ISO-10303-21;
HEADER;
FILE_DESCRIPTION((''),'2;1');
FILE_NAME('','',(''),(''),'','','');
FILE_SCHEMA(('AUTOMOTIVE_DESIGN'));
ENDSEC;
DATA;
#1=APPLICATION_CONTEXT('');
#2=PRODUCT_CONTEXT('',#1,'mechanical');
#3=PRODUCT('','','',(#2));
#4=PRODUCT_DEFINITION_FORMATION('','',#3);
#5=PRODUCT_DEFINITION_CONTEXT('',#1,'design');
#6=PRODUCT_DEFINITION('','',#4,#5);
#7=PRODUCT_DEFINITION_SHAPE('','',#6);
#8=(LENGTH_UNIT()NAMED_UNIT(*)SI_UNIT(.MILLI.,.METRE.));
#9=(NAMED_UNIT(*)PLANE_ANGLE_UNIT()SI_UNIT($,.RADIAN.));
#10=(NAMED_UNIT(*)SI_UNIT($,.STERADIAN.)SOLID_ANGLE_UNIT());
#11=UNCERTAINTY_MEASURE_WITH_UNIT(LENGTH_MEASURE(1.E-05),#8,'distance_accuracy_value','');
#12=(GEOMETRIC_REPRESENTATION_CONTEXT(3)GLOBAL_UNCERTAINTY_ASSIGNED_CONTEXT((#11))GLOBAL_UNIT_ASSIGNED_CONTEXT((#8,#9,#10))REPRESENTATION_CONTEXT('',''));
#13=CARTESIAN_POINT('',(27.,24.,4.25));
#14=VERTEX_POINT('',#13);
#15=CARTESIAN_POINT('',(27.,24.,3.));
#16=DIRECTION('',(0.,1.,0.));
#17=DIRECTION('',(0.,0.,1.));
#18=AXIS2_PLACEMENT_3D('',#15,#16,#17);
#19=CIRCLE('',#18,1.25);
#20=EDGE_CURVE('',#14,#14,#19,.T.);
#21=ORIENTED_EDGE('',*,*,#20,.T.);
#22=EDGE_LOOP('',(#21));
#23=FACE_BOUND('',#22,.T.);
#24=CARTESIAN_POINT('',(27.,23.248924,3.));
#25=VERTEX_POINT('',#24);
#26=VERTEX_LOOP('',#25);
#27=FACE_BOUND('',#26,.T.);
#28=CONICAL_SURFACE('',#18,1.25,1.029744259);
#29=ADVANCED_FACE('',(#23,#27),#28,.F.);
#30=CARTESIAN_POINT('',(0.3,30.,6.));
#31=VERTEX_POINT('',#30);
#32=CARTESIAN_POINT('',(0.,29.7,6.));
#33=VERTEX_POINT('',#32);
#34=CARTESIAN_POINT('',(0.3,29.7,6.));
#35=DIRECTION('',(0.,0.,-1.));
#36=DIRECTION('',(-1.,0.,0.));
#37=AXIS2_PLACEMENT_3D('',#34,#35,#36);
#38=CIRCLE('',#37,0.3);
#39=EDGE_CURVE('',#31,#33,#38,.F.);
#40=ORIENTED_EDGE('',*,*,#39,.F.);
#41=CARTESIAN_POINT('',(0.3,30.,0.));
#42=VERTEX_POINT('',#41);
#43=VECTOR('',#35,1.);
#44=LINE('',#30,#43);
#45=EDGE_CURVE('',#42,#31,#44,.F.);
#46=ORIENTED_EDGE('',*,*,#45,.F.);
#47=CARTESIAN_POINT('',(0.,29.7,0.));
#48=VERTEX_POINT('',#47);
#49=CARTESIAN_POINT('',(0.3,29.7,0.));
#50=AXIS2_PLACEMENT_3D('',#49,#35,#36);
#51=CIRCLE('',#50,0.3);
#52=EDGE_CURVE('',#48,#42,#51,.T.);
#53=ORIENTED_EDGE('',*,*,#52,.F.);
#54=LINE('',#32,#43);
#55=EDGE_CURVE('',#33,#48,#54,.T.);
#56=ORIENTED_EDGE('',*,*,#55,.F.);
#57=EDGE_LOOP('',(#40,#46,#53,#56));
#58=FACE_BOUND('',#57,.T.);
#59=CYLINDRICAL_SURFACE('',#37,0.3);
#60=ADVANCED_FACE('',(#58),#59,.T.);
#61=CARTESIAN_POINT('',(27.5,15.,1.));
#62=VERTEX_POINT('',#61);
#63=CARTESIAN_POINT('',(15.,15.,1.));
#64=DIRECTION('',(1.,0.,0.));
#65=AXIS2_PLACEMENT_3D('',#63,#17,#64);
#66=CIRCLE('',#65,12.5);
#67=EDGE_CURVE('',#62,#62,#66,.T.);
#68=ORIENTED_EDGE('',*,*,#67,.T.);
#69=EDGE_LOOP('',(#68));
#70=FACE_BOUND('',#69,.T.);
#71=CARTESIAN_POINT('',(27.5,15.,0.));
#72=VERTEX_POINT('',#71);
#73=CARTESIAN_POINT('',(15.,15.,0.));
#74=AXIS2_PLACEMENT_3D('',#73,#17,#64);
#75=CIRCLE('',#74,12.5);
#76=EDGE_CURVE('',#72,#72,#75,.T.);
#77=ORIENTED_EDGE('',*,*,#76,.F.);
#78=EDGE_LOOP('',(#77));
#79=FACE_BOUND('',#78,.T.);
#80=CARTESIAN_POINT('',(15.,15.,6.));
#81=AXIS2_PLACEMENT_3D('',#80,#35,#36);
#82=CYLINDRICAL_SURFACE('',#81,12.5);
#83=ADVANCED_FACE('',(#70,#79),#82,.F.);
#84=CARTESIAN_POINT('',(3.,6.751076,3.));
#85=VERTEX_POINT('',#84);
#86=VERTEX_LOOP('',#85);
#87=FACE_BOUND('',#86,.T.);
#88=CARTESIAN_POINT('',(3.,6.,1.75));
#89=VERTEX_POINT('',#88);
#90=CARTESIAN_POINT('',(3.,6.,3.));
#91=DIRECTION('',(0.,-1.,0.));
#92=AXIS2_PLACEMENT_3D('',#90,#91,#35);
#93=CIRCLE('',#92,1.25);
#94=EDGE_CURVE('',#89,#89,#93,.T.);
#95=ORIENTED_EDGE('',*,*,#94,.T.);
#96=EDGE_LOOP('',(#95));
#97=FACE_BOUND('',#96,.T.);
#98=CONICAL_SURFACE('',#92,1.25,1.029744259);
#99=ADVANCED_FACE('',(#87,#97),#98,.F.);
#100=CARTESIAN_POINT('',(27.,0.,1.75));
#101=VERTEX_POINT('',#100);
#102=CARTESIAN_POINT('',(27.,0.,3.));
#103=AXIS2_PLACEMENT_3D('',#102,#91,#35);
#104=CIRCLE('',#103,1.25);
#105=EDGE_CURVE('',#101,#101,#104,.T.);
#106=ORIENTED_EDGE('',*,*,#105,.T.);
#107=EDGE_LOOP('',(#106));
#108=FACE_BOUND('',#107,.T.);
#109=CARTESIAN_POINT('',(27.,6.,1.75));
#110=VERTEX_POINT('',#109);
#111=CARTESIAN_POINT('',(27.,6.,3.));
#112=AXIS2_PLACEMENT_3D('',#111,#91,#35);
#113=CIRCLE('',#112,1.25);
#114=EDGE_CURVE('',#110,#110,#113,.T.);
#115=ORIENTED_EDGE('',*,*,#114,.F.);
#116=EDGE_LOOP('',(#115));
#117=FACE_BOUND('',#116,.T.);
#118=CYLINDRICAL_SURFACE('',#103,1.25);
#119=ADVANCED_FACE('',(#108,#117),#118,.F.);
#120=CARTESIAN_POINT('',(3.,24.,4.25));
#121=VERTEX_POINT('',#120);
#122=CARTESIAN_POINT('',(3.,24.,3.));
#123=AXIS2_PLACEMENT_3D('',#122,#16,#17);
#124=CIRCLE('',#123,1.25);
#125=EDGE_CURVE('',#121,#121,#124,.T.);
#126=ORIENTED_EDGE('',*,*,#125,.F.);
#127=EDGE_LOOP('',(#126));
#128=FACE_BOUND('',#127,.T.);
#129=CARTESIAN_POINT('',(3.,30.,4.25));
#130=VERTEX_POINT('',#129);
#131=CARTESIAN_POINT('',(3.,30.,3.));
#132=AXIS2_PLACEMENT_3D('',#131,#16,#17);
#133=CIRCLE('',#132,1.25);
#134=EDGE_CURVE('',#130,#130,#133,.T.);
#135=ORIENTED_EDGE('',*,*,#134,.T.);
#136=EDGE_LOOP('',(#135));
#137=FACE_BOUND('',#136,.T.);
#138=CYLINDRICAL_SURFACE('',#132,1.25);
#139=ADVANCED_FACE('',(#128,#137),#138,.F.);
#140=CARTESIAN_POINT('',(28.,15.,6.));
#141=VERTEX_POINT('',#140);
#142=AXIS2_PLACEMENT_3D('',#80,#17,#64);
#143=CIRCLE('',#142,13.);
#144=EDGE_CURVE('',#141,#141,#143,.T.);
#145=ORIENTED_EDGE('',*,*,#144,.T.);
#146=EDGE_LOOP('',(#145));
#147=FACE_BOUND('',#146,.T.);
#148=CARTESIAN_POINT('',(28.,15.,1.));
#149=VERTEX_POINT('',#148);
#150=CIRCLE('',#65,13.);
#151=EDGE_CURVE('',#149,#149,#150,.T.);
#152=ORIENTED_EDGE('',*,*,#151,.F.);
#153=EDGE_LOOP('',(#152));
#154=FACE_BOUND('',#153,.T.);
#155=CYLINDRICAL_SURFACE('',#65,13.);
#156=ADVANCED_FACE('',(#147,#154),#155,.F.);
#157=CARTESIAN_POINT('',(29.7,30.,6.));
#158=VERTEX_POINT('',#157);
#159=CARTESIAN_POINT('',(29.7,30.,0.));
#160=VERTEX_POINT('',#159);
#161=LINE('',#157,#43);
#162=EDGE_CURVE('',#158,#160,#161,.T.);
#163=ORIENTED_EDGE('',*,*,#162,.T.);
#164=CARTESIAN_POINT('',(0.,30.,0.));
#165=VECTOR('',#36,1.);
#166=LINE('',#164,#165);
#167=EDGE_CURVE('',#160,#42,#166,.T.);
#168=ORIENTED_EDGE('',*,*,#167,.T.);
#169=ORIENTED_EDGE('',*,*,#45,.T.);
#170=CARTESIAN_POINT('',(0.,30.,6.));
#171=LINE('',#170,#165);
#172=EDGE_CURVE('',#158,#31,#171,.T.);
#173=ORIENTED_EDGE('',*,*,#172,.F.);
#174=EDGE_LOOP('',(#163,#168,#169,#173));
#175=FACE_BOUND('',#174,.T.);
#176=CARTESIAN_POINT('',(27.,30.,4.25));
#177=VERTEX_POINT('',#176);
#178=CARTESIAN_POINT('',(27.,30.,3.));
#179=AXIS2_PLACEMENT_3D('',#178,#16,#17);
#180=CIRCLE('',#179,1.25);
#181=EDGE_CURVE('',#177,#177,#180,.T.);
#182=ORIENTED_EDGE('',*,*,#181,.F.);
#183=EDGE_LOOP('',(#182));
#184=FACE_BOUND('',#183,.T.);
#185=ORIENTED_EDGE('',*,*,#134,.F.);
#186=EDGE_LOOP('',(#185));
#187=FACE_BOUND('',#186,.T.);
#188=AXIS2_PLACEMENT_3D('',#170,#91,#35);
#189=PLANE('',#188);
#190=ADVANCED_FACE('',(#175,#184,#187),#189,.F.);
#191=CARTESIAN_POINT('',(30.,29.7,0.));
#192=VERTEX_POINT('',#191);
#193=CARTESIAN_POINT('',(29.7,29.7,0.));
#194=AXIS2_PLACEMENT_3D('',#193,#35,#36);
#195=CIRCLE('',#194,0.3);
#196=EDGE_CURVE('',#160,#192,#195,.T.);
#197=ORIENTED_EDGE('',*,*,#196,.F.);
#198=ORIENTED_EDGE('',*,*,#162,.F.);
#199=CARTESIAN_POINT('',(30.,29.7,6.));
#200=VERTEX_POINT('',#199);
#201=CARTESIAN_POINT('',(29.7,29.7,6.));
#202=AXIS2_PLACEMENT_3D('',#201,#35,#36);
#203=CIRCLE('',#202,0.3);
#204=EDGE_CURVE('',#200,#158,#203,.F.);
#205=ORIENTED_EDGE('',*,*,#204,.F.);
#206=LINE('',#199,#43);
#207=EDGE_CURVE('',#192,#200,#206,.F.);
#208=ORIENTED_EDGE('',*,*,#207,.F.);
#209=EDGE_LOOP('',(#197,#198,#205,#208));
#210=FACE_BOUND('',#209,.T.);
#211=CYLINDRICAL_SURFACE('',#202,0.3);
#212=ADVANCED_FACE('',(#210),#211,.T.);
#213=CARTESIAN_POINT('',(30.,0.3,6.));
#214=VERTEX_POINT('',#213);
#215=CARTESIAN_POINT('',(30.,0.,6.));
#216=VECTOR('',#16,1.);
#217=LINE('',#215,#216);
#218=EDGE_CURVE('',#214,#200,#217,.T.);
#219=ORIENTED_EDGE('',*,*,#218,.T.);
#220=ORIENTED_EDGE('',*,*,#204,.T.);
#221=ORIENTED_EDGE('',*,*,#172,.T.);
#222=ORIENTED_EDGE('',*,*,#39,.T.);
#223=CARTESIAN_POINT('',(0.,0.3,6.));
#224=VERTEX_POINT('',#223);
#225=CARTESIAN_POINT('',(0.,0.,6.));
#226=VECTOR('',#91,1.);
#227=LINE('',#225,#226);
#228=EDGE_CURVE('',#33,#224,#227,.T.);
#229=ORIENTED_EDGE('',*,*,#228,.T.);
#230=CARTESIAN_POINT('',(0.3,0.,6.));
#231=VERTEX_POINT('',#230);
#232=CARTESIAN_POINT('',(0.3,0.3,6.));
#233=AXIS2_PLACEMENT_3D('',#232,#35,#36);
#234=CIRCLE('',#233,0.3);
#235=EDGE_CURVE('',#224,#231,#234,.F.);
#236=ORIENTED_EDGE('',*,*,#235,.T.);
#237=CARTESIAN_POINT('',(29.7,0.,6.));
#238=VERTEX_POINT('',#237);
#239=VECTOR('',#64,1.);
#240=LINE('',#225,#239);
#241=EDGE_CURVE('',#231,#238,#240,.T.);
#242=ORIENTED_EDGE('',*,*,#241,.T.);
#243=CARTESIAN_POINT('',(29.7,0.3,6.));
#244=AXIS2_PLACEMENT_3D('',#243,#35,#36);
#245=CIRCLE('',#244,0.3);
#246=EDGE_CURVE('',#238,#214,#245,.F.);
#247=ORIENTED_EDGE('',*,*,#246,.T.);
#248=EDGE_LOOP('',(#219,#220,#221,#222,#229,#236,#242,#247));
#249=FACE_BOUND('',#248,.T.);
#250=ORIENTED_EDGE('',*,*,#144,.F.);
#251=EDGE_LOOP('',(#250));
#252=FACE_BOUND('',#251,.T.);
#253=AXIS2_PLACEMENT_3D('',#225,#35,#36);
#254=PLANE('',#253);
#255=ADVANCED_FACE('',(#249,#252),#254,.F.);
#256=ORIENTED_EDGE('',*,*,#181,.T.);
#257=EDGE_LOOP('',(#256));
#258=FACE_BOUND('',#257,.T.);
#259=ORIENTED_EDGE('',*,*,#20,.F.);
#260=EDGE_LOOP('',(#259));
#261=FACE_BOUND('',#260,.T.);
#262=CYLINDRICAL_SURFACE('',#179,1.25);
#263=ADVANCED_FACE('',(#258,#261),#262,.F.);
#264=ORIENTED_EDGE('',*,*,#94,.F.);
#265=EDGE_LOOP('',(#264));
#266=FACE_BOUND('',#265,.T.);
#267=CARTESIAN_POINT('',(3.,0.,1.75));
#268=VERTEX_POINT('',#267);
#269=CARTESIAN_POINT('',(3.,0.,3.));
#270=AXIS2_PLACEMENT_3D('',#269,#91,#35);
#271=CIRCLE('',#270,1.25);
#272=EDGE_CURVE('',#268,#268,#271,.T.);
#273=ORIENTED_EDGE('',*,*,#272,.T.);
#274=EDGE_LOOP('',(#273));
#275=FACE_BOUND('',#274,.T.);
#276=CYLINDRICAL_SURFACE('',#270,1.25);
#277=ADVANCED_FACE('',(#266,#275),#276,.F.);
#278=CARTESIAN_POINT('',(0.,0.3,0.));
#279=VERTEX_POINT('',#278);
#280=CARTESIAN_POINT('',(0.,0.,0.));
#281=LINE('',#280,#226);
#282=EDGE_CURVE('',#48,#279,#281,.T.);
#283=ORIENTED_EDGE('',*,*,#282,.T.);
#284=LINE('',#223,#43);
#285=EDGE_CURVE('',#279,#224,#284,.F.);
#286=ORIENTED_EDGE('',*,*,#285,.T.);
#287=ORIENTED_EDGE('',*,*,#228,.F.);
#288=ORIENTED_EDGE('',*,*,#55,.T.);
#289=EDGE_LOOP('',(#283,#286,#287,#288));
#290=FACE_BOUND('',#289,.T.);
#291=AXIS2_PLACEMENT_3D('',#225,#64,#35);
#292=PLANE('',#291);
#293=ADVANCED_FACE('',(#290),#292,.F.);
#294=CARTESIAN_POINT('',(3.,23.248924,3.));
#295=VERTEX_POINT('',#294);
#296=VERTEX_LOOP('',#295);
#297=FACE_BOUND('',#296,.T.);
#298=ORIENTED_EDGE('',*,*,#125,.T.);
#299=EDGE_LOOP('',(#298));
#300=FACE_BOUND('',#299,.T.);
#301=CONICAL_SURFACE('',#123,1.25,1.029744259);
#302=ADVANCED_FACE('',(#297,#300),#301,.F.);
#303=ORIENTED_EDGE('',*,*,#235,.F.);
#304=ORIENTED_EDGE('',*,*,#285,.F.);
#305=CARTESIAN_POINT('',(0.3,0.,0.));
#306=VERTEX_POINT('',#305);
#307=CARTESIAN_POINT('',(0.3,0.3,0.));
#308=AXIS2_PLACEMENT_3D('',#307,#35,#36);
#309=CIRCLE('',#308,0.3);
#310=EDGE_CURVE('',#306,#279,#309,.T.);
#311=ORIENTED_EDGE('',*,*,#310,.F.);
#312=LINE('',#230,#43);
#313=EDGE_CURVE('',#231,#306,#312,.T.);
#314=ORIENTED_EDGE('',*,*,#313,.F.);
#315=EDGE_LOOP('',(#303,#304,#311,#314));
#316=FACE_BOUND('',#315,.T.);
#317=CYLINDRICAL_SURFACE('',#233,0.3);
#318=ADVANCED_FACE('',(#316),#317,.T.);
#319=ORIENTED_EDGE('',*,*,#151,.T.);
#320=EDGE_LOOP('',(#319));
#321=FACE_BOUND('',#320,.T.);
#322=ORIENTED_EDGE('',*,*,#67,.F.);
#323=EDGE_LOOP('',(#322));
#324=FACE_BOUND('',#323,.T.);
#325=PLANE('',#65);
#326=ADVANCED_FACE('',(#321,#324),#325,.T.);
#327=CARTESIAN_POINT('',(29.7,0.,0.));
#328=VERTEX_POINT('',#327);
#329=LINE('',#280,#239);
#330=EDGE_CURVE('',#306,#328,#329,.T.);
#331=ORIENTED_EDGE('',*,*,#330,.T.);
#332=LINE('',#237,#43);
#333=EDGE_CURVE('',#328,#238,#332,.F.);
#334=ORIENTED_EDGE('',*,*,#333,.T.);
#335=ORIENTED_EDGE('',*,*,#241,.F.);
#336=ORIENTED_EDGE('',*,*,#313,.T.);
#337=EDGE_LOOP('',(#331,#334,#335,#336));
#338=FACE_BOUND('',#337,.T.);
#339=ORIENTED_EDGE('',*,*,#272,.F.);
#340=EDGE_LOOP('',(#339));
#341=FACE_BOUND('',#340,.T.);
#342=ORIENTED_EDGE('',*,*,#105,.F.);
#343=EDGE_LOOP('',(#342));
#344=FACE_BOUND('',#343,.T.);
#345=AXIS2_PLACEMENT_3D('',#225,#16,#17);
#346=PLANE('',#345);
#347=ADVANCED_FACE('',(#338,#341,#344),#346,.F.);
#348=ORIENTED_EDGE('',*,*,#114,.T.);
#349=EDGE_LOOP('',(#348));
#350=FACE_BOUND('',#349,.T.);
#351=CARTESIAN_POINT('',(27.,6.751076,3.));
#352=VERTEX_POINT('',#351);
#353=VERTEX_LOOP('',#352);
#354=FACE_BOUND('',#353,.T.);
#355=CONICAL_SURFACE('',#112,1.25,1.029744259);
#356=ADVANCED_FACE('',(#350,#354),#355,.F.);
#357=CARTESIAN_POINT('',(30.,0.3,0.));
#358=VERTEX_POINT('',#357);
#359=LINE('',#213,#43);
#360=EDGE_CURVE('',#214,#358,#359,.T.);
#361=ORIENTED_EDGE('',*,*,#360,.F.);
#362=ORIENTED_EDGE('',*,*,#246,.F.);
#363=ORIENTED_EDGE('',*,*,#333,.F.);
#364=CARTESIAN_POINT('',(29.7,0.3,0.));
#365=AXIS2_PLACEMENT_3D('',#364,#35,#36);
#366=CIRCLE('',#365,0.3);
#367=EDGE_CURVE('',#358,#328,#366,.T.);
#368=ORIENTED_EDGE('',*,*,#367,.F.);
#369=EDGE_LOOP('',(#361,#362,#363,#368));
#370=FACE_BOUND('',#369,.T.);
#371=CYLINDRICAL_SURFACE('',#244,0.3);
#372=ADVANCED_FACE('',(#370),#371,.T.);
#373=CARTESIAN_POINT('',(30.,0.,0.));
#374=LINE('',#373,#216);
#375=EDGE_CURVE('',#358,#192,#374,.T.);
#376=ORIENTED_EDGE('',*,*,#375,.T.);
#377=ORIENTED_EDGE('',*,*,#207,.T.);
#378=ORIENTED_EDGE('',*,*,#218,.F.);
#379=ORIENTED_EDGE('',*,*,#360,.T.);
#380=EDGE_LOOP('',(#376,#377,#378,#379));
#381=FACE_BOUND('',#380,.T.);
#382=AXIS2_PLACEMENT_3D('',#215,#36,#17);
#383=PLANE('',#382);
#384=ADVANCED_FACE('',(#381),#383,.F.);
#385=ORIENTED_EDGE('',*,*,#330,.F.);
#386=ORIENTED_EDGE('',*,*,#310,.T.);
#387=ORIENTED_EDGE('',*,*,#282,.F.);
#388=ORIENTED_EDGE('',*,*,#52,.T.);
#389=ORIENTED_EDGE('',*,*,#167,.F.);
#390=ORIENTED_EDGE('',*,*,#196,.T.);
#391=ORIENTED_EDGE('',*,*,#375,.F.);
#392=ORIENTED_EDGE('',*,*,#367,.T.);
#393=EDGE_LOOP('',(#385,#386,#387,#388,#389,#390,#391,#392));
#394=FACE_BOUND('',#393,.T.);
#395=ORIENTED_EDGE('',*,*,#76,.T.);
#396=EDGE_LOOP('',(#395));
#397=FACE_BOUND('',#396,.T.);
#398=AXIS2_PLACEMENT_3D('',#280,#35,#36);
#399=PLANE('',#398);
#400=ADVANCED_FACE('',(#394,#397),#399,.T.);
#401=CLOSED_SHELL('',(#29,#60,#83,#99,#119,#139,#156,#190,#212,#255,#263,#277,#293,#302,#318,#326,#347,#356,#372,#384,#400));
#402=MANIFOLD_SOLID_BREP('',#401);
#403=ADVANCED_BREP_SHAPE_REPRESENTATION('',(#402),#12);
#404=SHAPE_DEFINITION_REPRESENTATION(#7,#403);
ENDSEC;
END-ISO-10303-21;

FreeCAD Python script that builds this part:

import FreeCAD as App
import Part
import Sketcher
from FreeCAD import Vector


def edges_at(feature, points):
    """Names of the edges that pass closest to the given points."""
    edges = feature.Shape.Edges
    near = lambda p: min(range(len(edges)), key=lambda i: edges[i].distToShape(Part.Vertex(*p))[0])
    return sorted({f"Edge{near(p) + 1}" for p in points})


def add_polygon(sketch, points):
    """Adds a closed chain of lines whose ends are joined by coincident constraints."""
    first, n = sketch.GeometryCount, len(points)
    for a, b in zip(points, points[1:] + points[:1]):
        sketch.addGeometry(Part.LineSegment(App.Vector(*a, 0), App.Vector(*b, 0)), False)
    for i in range(n):
        sketch.addConstraint(Sketcher.Constraint("Coincident", first + i, 2, first + (i + 1) % n, 1))

doc = App.newDocument("Part")
params = doc.addObject("Spreadsheet::Sheet", "Params")
for row, (alias, value) in enumerate([
    ("sketch1_diameter", "25 mm"),
    ("sketch1_width", "30 mm"),
    ("pad1_length", "6 mm"),
    ("sketch2_diameter", "26 mm"),
    ("pocket1_length", "5 mm"),
    ("sketch3_diameter", "2.5 mm"),
    ("hole_diameter", "2.5 mm"),
    ("hole_depth", "6 mm"),
    ("sketch4_diameter", "2.5 mm"),
    ("hole2_diameter", "2.5 mm"),
    ("hole2_depth", "6 mm"),
    ("fillet_radius", "0.3 mm"),
], start=1):
    params.set(f"A{row}", alias)
    params.set(f"B{row}", "=" + value)
    params.setAlias(f"B{row}", alias)

body = doc.addObject("PartDesign::Body", "Body")

# Sketch on XY plane
sketch1 = body.newObject("Sketcher::SketchObject", "Sketch")
sketch1.AttachmentSupport = (doc.getObject("XY_Plane"), [""])
sketch1.MapMode = "FlatFace"
add_polygon(sketch1, [(0, 30), (0, 0), (30, 0), (30, 30)])  # lines 0-3
sketch1.addGeometry(Part.Circle(Vector(15, 15, 0), Vector(0, 0, 1), 12), False)  # 4
sketch1.addConstraint([
    Sketcher.Constraint("Vertical", 0),
    Sketcher.Constraint("Horizontal", 1),
    Sketcher.Constraint("Vertical", 2),
    Sketcher.Constraint("Horizontal", 3),
    Sketcher.Constraint("Coincident", 0, 2, -1, 1),
    Sketcher.Constraint("Equal", 3, 0),
    Sketcher.Constraint("Diameter", 4, 25.0),
    Sketcher.Constraint("DistanceX", 1, 1, 1, 2, 30.0),
    Sketcher.Constraint("DistanceX", -1, 1, 4, 3, 15.0),
    Sketcher.Constraint("DistanceY", -1, 1, 4, 3, 15.0),
])
sketch1.setExpression("Constraints[10]", "Params.sketch1_diameter")
sketch1.setExpression("Constraints[11]", "Params.sketch1_width")
pad1 = body.newObject("PartDesign::Pad", "Pad")
pad1.Profile = sketch1
pad1.setExpression("Length", "Params.pad1_length")

# Sketch on XY plane
sketch2 = body.newObject("Sketcher::SketchObject", "Sketch001")
sketch2.AttachmentSupport = (doc.getObject("XY_Plane"), [""])
sketch2.MapMode = "FlatFace"
sketch2.AttachmentOffset = App.Placement(Vector(0, 0, 6), App.Rotation())
sketch2.addGeometry(Part.Circle(Vector(15, 15, 0), Vector(0, 0, 1), 13), False)
sketch2.addConstraint([
    Sketcher.Constraint("Diameter", 0, 26.0),
    Sketcher.Constraint("DistanceX", -1, 1, 0, 3, 15.0),
    Sketcher.Constraint("DistanceY", -1, 1, 0, 3, 15.0),
])
sketch2.setExpression("Constraints[0]", "Params.sketch2_diameter")
pocket1 = body.newObject("PartDesign::Pocket", "Pocket")
pocket1.Profile = sketch2
pocket1.setExpression("Length", "Params.pocket1_length")

# Sketch on XZ plane
sketch3 = body.newObject("Sketcher::SketchObject", "Sketch002")
sketch3.AttachmentSupport = (doc.getObject("XZ_Plane"), [""])
sketch3.MapMode = "FlatFace"
sketch3.AttachmentOffset = App.Placement(Vector(0, 0, -30), App.Rotation())
sketch3.addGeometry([
    Part.Circle(Vector(3, 3, 0), Vector(0, 0, 1), 1.2),
    Part.Circle(Vector(27, 3, 0), Vector(0, 0, 1), 1.2),
], False)
sketch3.addConstraint([
    Sketcher.Constraint("Equal", 0, 1),
    Sketcher.Constraint("Horizontal", 0, 3, 1, 3),
    Sketcher.Constraint("Diameter", 0, 2.5),
    Sketcher.Constraint("DistanceX", -1, 1, 0, 3, 3.0),
    Sketcher.Constraint("DistanceY", -1, 1, 0, 3, 3.0),
    Sketcher.Constraint("DistanceX", -1, 1, 1, 3, 27.0),
])
sketch3.setExpression("Constraints[2]", "Params.sketch3_diameter")
doc.recompute()
hole = body.newObject("PartDesign::Hole", "Hole")
hole.Profile = sketch3
hole.ThreadType = "None"
hole.setExpression("Diameter", "Params.hole_diameter")
hole.DepthType = "Dimension"
hole.setExpression("Depth", "Params.hole_depth")
hole.DrillPoint = "Angled"
hole.DrillPointAngle = 118
hole.Reversed = True

# Sketch on XZ plane
sketch4 = body.newObject("Sketcher::SketchObject", "Sketch003")
sketch4.AttachmentSupport = (doc.getObject("XZ_Plane"), [""])
sketch4.MapMode = "FlatFace"
sketch4.addGeometry([
    Part.Circle(Vector(3, 3, 0), Vector(0, 0, 1), 1.2),
    Part.Circle(Vector(27, 3, 0), Vector(0, 0, 1), 1.2),
], False)
sketch4.addConstraint([
    Sketcher.Constraint("Equal", 0, 1),
    Sketcher.Constraint("Horizontal", 0, 3, 1, 3),
    Sketcher.Constraint("Diameter", 0, 2.5),
    Sketcher.Constraint("DistanceX", -1, 1, 0, 3, 3.0),
    Sketcher.Constraint("DistanceY", -1, 1, 0, 3, 3.0),
    Sketcher.Constraint("DistanceX", -1, 1, 1, 3, 27.0),
])
sketch4.setExpression("Constraints[2]", "Params.sketch4_diameter")
doc.recompute()
hole2 = body.newObject("PartDesign::Hole", "Hole001")
hole2.Profile = sketch4
hole2.ThreadType = "None"
hole2.setExpression("Diameter", "Params.hole2_diameter")
hole2.DepthType = "Dimension"
hole2.setExpression("Depth", "Params.hole2_depth")
hole2.DrillPoint = "Angled"
hole2.DrillPointAngle = 118
doc.recompute()

fillet = body.newObject("PartDesign::Fillet", "Fillet")
fillet.Base = (hole2, edges_at(hole2, [
    (0, 30, 3),
    (30, 30, 3),
    (30, 0, 3),
    (0, 0, 3),
]))
fillet.setExpression("Radius", "Params.fillet_radius")

doc.recompute()
